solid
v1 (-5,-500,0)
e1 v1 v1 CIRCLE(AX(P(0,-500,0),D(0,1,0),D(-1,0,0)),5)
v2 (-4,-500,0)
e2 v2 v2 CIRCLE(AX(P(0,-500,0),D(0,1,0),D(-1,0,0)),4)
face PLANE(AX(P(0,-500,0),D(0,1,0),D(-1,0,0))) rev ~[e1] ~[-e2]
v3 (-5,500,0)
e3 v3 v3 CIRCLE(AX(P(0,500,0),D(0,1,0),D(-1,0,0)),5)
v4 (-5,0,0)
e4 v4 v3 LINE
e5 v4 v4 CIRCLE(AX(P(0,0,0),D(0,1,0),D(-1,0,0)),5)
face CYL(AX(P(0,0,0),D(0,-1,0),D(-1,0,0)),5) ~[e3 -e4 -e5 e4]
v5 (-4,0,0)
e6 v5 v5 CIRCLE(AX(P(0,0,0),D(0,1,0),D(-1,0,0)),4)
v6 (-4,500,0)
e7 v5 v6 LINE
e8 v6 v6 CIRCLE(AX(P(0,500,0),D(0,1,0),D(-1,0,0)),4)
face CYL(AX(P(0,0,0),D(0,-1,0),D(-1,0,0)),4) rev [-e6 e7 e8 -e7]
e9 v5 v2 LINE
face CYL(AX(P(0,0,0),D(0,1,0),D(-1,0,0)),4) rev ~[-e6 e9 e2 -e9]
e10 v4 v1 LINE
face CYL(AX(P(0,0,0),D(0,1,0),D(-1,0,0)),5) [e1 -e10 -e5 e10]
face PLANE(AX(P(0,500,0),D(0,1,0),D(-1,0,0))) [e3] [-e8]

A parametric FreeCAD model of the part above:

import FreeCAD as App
import Part
import Sketcher
from FreeCAD import Vector

doc = App.newDocument("Part")
body = doc.addObject("PartDesign::Body", "Body")

# Sketch on XZ plane
sketch1 = doc.addObject("Sketcher::SketchObject", "Sketch")
body.addObject(sketch1)
sketch1.AttachmentSupport = (doc.XZ_Plane, [""])
sketch1.MapMode = "FlatFace"
sketch1.addGeometry([
    Part.Circle(Vector(0, 0, 0), Vector(0, 0, 1), 5),
    Part.Circle(Vector(0, 0, 0), Vector(0, 0, 1), 4),
], False)
sketch1.addConstraint([
    Sketcher.Constraint("Coincident", 0, 3, -1, 1),
    Sketcher.Constraint("Coincident", 1, 3, -1, 1),
    Sketcher.Constraint("Diameter", 0, 10.0),
    Sketcher.Constraint("Diameter", 1, 8.0),
])
pad1 = doc.addObject("PartDesign::Pad", "Pad")
body.addObject(pad1)
pad1.Profile = sketch1
pad1.Length = 1000
pad1.Midplane = True

doc.recompute()
